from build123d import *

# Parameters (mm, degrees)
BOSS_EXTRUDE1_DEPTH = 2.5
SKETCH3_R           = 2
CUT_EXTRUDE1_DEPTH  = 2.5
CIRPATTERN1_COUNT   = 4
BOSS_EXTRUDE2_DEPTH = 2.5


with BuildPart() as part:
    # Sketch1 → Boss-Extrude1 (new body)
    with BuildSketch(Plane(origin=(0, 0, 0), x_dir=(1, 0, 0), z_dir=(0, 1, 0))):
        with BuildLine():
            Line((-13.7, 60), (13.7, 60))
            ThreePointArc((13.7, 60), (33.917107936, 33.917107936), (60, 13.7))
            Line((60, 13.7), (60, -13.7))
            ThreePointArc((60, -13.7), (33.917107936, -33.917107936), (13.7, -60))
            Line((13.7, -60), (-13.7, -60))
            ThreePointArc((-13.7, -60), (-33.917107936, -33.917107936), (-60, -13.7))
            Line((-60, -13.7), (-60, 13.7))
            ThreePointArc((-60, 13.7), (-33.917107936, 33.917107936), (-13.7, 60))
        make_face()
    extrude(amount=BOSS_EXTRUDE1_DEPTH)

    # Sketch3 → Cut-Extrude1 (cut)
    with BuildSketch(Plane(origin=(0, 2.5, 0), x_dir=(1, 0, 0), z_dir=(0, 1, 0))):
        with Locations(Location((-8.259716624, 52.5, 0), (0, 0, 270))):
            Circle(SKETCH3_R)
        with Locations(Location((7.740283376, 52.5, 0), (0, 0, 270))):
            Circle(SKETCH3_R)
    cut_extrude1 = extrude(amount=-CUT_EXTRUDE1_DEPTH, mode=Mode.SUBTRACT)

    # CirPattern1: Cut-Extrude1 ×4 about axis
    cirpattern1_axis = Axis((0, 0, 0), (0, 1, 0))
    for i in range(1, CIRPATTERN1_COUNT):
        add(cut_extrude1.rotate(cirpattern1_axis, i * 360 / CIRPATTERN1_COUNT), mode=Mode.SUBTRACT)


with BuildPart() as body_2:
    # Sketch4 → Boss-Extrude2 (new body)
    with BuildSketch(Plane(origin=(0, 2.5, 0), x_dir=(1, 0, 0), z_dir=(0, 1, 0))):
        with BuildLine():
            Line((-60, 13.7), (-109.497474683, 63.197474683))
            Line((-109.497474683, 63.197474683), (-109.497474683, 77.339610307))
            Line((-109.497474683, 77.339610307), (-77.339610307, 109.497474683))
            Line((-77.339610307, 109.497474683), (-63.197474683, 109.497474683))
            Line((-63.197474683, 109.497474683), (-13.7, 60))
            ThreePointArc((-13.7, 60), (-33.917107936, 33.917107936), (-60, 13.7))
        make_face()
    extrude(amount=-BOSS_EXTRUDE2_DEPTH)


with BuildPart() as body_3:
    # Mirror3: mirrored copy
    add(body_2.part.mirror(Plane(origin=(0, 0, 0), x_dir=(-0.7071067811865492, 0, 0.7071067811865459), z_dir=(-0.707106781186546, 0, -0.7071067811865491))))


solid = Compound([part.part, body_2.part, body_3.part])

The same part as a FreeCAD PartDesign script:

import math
import FreeCAD as App
import Part
import Sketcher
Q = App.Units.Quantity

doc = App.newDocument("Part")
params = doc.addObject("Spreadsheet::Sheet", "Params")
for row, (alias, value) in enumerate([
    ("sketch1_width", "27.4 mm"),
    ("pad1_length", "2.5 mm"),
    ("sketch2_diameter", "4 mm"),
    ("pocket1_length", "2.5 mm"),
    ("sketch3_length", "70 mm"),
    ("pad2_length", "2.5 mm"),
], start=1):
    params.set(f"A{row}", alias)
    params.set(f"B{row}", "=" + value)
    params.setAlias(f"B{row}", alias)

body = doc.addObject("PartDesign::Body", "Body")

# Sketch on XZ plane
sketch1 = body.newObject("Sketcher::SketchObject", "Sketch")
sketch1.AttachmentSupport = (doc.getObject("XZ_Plane"), [""])
sketch1.MapMode = "FlatFace"
sketch1.addGeometry(Part.LineSegment(App.Vector(14, -60, 0), App.Vector(-14, -60, 0)), False)
sketch1.addGeometry(Part.ArcOfCircle(Part.Circle(App.Vector(-127, -127, 0), App.Vector(0, 0, 1), 131), math.radians(31), math.radians(59)), False)
sketch1.addGeometry(Part.LineSegment(App.Vector(-60, -14, 0), App.Vector(-60, 14, 0)), False)
sketch1.addGeometry(Part.ArcOfCircle(Part.Circle(App.Vector(-127, 127, 0), App.Vector(0, 0, 1), 131), math.radians(-59), math.radians(-31)), False)
sketch1.addGeometry(Part.LineSegment(App.Vector(-14, 60, 0), App.Vector(14, 60, 0)), False)
sketch1.addGeometry(Part.ArcOfCircle(Part.Circle(App.Vector(127, 127, 0), App.Vector(0, 0, 1), 131), math.radians(-149), math.radians(-121)), False)
sketch1.addGeometry(Part.LineSegment(App.Vector(60, 14, 0), App.Vector(60, -14, 0)), False)
sketch1.addGeometry(Part.ArcOfCircle(Part.Circle(App.Vector(127, -127, 0), App.Vector(0, 0, 1), 131), math.radians(121), math.radians(149)), False)
sketch1.addConstraint(Sketcher.Constraint("Coincident", 0, 2, 1, 1))
sketch1.addConstraint(Sketcher.Constraint("Coincident", 1, 2, 2, 1))
sketch1.addConstraint(Sketcher.Constraint("Coincident", 2, 2, 3, 1))
sketch1.addConstraint(Sketcher.Constraint("Coincident", 3, 2, 4, 1))
sketch1.addConstraint(Sketcher.Constraint("Coincident", 4, 2, 5, 1))
sketch1.addConstraint(Sketcher.Constraint("Coincident", 5, 2, 6, 1))
sketch1.addConstraint(Sketcher.Constraint("Coincident", 6, 2, 7, 1))
sketch1.addConstraint(Sketcher.Constraint("Coincident", 7, 2, 0, 1))
sketch1.addConstraint(Sketcher.Constraint("Horizontal", 0))
sketch1.addConstraint(Sketcher.Constraint("Vertical", 2))
sketch1.addConstraint(Sketcher.Constraint("Horizontal", 4))
sketch1.addConstraint(Sketcher.Constraint("Vertical", 6))
sketch1.addConstraint(Sketcher.Constraint("Equal", 1, 3))
sketch1.addConstraint(Sketcher.Constraint("Equal", 3, 5))
sketch1.addConstraint(Sketcher.Constraint("Equal", 5, 7))
sketch1.addConstraint(Sketcher.Constraint("Symmetric", 1, 3, 5, 3, -1, 1))
sketch1.addConstraint(Sketcher.Constraint("Symmetric", 3, 3, 7, 3, -1, 1))
sketch1.addConstraint(Sketcher.Constraint("Symmetric", 3, 3, 5, 3, -2))
sketch1.addConstraint(Sketcher.Constraint("Horizontal", 2, 2, 5, 2))
sketch1.addConstraint(Sketcher.Constraint("Vertical", 0, 2, 3, 2))
sketch1.addConstraint(Sketcher.Constraint("Equal", 4, 2))
sketch1.addConstraint(Sketcher.Constraint("DistanceX", 0, 2, 0, 1, Q("27.4 mm")))
sketch1.addConstraint(Sketcher.Constraint("DistanceY", 0, 2, -1, 1, Q("60 mm")))
sketch1.addConstraint(Sketcher.Constraint("DistanceX", 1, 2, -1, 1, Q("60 mm")))
sketch1.addConstraint(Sketcher.Constraint("Radius", 1, Q("131.282317 mm")))
sketch1.setExpression("Constraints[21]", "Params.sketch1_width")
pad1 = body.newObject("PartDesign::Pad", "Pad")
pad1.Profile = sketch1
pad1.setExpression("Length", "Params.pad1_length")
pad1.Reversed = True

# Sketch on XZ plane
sketch2 = body.newObject("Sketcher::SketchObject", "Sketch001")
sketch2.AttachmentSupport = (doc.getObject("XZ_Plane"), [""])
sketch2.MapMode = "FlatFace"
sketch2.AttachmentOffset = App.Placement(App.Vector(0, 0, -2.5), App.Rotation())
sketch2.addGeometry(Part.Circle(App.Vector(-8.3, -52.5, 0), App.Vector(0, 0, 1), 2), False)
sketch2.addGeometry(Part.Circle(App.Vector(7.7, -52.5, 0), App.Vector(0, 0, 1), 2), False)
sketch2.addConstraint(Sketcher.Constraint("Equal", 0, 1))
sketch2.addConstraint(Sketcher.Constraint("Horizontal", 0, 3, 1, 3))
sketch2.addConstraint(Sketcher.Constraint("Diameter", 0, Q("4 mm")))
sketch2.addConstraint(Sketcher.Constraint("DistanceX", 0, 3, 1, 3, Q("16 mm")))
sketch2.addConstraint(Sketcher.Constraint("DistanceY", 0, 3, -1, 1, Q("52.5 mm")))
sketch2.addConstraint(Sketcher.Constraint("DistanceX", 0, 3, -1, 1, Q("8.259717 mm")))
sketch2.setExpression("Constraints[2]", "Params.sketch2_diameter")
pocket1 = body.newObject("PartDesign::Pocket", "Pocket")
pocket1.Profile = sketch2
pocket1.setExpression("Length", "Params.pocket1_length")
pocket1.Reversed = True
doc.recompute()

polarpattern = body.newObject("PartDesign::PolarPattern", "PolarPattern")
polarpattern.Originals = [pocket1]
polarpattern.Axis = (doc.getObject("Y_Axis"), [""])
polarpattern.Angle = 360
polarpattern.Occurrences = 4
body.Tip = polarpattern
body2 = doc.addObject("PartDesign::Body", "Body001")

# Sketch on XZ plane
sketch3 = body2.newObject("Sketcher::SketchObject", "Sketch002")
sketch3.AttachmentSupport = (doc.getObject("XZ_Plane001"), [""])
sketch3.MapMode = "FlatFace"
sketch3.AttachmentOffset = App.Placement(App.Vector(0, 0, -2.5), App.Rotation())
sketch3.addGeometry(Part.LineSegment(App.Vector(-109, -63, 0), App.Vector(-60, -14, 0)), False)
sketch3.addGeometry(Part.ArcOfCircle(Part.Circle(App.Vector(-127, -127, 0), App.Vector(0, 0, 1), 131), math.radians(31), math.radians(59)), False)
sketch3.addGeometry(Part.LineSegment(App.Vector(-14, -60, 0), App.Vector(-63, -109, 0)), False)
sketch3.addGeometry(Part.LineSegment(App.Vector(-63, -109, 0), App.Vector(-77, -109, 0)), False)
sketch3.addGeometry(Part.LineSegment(App.Vector(-77, -109, 0), App.Vector(-109, -77, 0)), False)
sketch3.addGeometry(Part.LineSegment(App.Vector(-109, -77, 0), App.Vector(-109, -63, 0)), False)
sketch3.addConstraint(Sketcher.Constraint("Coincident", 0, 2, 1, 2))
sketch3.addConstraint(Sketcher.Constraint("Coincident", 1, 1, 2, 1))
sketch3.addConstraint(Sketcher.Constraint("Coincident", 2, 2, 3, 1))
sketch3.addConstraint(Sketcher.Constraint("Coincident", 3, 2, 4, 1))
sketch3.addConstraint(Sketcher.Constraint("Coincident", 4, 2, 5, 1))
sketch3.addConstraint(Sketcher.Constraint("Coincident", 5, 2, 0, 1))
sketch3.addConstraint(Sketcher.Constraint("Horizontal", 3))
sketch3.addConstraint(Sketcher.Constraint("Vertical", 5))
sketch3.addConstraint(Sketcher.Constraint("Parallel", 0, 2))
sketch3.addConstraint(Sketcher.Constraint("Perpendicular", 2, 4))
sketch3.addConstraint(Sketcher.Constraint("Equal", 3, 5))
sketch3.addConstraint(Sketcher.Constraint("Equal", 0, 2))
sketch3.addConstraint(Sketcher.Constraint("Angle", 0, Q("45 deg")))
sketch3.addConstraint(Sketcher.Constraint("Distance", 0, Q("70 mm")))
sketch3.addConstraint(Sketcher.Constraint("DistanceX", 0, 2, -1, 1, Q("60 mm")))
sketch3.addConstraint(Sketcher.Constraint("DistanceY", 1, 1, -1, 1, Q("60 mm")))
sketch3.addConstraint(Sketcher.Constraint("DistanceY", 0, 2, -1, 1, Q("13.7 mm")))
sketch3.addConstraint(Sketcher.Constraint("Radius", 1, Q("131.282317 mm")))
sketch3.addConstraint(Sketcher.Constraint("DistanceX", 3, 2, 3, 1, Q("14.142136 mm")))
sketch3.setExpression("Constraints[13]", "Params.sketch3_length")
pad2 = body2.newObject("PartDesign::Pad", "Pad001")
pad2.Profile = sketch3
pad2.setExpression("Length", "Params.pad2_length")
body3 = doc.addObject("PartDesign::Body", "Body002")
doc.recompute()

mirroring = doc.addObject("Part::Mirroring", "Mirroring")
mirroring.Source = body2
mirroring.Base = App.Vector(0, 0, 0)
mirroring.Normal = App.Vector(-0.707106781, 0, -0.707106781)
body3.BaseFeature = mirroring
doc.recompute()
mirroring.Visibility = False

doc.recompute()
